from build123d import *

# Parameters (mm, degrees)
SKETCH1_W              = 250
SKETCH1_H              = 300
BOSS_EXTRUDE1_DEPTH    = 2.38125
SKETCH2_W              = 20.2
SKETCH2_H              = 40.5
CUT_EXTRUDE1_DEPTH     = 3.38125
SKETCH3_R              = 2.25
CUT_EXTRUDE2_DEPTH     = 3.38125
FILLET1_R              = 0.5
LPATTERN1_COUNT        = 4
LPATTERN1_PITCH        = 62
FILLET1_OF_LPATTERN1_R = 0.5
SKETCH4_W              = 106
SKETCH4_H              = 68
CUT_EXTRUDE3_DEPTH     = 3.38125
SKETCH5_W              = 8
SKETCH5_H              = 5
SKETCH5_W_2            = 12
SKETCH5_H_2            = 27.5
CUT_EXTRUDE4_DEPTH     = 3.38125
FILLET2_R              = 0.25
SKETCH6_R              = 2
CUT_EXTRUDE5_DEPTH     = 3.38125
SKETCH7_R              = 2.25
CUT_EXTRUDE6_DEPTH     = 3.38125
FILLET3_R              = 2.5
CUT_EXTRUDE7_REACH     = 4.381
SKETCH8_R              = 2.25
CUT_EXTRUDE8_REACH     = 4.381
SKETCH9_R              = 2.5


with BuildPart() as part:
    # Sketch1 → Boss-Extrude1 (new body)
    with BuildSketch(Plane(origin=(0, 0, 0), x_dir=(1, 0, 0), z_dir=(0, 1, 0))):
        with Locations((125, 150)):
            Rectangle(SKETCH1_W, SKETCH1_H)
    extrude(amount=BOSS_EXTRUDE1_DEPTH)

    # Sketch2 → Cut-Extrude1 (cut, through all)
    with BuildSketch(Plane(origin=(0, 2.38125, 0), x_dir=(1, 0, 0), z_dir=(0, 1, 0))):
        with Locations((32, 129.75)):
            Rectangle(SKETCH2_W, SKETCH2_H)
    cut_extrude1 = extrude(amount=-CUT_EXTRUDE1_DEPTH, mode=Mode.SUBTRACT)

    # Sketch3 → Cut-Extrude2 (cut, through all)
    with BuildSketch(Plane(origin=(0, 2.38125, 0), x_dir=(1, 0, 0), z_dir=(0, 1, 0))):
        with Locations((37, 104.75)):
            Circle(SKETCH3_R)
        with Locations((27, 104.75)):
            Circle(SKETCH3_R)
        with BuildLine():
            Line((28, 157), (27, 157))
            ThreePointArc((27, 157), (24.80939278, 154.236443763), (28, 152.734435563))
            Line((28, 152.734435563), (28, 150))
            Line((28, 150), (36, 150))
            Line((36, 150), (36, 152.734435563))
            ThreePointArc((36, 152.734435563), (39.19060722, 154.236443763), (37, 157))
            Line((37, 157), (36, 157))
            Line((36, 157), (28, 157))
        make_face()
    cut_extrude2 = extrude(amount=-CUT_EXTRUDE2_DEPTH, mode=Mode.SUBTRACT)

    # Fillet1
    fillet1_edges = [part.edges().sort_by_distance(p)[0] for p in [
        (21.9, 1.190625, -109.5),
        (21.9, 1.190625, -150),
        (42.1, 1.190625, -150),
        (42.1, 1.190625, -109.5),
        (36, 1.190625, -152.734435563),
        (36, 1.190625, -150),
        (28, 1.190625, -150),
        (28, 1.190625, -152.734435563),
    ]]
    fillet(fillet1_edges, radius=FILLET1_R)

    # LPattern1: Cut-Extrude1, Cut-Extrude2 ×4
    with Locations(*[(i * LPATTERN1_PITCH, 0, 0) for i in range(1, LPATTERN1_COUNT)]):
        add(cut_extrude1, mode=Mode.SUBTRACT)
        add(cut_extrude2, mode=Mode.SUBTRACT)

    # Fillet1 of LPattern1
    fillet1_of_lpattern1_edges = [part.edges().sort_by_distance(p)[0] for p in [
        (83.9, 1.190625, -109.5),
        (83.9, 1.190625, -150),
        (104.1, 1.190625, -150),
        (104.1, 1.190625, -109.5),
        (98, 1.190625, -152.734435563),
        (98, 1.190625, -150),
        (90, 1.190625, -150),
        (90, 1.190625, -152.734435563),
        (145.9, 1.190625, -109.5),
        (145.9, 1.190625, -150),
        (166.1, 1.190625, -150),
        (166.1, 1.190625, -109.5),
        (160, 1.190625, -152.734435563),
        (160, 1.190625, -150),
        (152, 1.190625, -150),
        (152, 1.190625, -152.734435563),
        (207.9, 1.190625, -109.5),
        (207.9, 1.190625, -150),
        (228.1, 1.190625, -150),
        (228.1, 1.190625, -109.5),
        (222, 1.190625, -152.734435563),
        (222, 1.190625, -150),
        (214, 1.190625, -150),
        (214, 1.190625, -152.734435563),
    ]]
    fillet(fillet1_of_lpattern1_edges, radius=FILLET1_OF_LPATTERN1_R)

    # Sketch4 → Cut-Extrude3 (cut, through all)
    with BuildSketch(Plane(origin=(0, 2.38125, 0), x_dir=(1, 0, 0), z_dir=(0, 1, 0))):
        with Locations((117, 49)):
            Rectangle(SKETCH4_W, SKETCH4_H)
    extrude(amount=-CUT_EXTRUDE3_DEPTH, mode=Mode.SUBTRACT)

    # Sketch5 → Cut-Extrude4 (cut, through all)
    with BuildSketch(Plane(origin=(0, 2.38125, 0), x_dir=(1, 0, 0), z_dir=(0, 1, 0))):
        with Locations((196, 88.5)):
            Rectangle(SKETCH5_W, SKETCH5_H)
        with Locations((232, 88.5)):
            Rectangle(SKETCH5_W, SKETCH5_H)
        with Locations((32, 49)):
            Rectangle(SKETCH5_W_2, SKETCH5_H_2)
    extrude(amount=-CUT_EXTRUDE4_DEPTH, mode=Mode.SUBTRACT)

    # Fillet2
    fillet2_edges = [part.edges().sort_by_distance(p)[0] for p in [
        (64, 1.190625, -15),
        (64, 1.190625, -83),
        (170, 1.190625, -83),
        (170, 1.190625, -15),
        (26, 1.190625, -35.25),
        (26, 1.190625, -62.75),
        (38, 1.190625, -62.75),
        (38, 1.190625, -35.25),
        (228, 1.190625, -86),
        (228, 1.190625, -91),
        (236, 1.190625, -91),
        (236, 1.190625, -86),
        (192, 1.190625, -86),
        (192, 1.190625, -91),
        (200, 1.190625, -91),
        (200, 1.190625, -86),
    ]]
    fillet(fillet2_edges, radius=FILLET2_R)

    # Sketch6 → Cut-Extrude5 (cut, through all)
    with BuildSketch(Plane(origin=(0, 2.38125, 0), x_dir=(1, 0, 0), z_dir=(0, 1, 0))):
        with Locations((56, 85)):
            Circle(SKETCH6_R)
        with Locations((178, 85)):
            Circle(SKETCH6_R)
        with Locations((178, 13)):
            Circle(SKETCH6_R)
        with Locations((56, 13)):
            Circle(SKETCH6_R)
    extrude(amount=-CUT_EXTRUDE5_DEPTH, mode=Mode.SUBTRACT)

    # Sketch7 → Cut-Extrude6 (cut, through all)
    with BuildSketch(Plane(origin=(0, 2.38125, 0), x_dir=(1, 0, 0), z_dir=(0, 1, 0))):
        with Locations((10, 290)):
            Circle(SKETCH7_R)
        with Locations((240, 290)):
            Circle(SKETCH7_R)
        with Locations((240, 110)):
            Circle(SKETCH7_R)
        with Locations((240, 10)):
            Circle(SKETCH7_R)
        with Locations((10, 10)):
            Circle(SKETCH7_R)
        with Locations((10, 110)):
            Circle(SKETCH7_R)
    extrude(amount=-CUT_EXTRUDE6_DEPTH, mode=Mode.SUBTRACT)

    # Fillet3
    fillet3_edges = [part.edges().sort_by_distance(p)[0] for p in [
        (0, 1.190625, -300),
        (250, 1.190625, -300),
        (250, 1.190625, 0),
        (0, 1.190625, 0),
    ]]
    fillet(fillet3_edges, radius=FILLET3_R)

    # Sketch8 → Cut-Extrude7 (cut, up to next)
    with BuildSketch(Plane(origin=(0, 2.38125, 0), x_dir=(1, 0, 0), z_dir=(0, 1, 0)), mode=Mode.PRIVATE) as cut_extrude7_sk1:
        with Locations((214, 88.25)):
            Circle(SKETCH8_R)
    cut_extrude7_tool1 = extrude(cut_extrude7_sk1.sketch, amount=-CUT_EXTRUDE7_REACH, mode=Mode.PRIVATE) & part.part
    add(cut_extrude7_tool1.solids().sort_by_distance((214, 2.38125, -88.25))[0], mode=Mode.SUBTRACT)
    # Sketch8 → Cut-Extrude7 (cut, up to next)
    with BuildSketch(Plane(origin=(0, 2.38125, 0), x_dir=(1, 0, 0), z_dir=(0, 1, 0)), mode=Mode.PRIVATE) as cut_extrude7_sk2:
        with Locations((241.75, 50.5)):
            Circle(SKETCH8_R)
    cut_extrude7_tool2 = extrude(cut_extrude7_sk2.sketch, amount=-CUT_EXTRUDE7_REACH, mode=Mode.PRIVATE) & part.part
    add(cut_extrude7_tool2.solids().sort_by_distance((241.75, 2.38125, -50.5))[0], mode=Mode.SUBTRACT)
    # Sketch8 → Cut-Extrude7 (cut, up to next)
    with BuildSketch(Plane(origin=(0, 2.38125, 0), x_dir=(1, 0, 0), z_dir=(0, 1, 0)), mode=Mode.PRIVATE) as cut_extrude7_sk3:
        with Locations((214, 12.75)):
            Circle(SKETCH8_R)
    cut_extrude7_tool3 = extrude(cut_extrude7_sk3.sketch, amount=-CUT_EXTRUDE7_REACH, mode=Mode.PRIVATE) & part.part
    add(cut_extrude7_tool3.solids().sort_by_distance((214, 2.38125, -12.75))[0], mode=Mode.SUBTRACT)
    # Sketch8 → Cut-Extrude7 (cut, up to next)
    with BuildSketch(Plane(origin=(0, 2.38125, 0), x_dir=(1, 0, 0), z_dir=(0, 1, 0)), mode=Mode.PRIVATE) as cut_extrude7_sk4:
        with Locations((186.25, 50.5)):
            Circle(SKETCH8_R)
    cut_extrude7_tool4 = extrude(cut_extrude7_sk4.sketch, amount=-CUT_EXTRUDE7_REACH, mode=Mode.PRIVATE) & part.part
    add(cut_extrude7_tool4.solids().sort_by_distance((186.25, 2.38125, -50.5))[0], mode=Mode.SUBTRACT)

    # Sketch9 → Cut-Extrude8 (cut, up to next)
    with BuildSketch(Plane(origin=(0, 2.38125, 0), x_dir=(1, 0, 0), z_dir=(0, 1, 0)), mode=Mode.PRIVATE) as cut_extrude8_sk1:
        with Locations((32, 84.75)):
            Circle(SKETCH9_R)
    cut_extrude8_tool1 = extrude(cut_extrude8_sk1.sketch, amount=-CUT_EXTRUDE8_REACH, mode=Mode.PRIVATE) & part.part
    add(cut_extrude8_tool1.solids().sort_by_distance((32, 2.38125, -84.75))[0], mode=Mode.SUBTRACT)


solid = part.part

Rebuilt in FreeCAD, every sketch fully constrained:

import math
import FreeCAD as App
import Part
import Sketcher
from FreeCAD import Vector
Q = App.Units.Quantity


def edges_at(feature, points):
    """Names of the edges that pass closest to the given points."""
    edges = feature.Shape.Edges
    near = lambda p: min(range(len(edges)), key=lambda i: edges[i].distToShape(Part.Vertex(*p))[0])
    return sorted({f"Edge{near(p) + 1}" for p in points})


def add_polygon(sketch, points):
    """Adds a closed chain of lines whose ends are joined by coincident constraints."""
    first, n = sketch.GeometryCount, len(points)
    for a, b in zip(points, points[1:] + points[:1]):
        sketch.addGeometry(Part.LineSegment(App.Vector(*a, 0), App.Vector(*b, 0)), False)
    for i in range(n):
        sketch.addConstraint(Sketcher.Constraint("Coincident", first + i, 2, first + (i + 1) % n, 1))

doc = App.newDocument("Part")
body = doc.addObject("PartDesign::Body", "Body")

# Sketch on XZ plane
sketch1 = body.newObject("Sketcher::SketchObject", "Sketch")
sketch1.AttachmentSupport = (doc.getObject("XZ_Plane"), [""])
sketch1.MapMode = "FlatFace"
add_polygon(sketch1, [(0, -300), (0, 0), (250, 0), (250, -300)])  # lines 0-3
sketch1.addConstraint([
    Sketcher.Constraint("Vertical", 0),
    Sketcher.Constraint("Horizontal", 1),
    Sketcher.Constraint("Vertical", 2),
    Sketcher.Constraint("Horizontal", 3),
    Sketcher.Constraint("Coincident", 0, 2, -1, 1),
    Sketcher.Constraint("DistanceX", 1, 1, 1, 2, Q("250 mm")),
    Sketcher.Constraint("DistanceY", 0, 1, 0, 2, Q("300 mm")),
])
pad1 = body.newObject("PartDesign::Pad", "Pad")
pad1.Profile = sketch1
pad1.Length = 2.38125
pad1.Reversed = True

# Sketch on XZ plane
sketch2 = body.newObject("Sketcher::SketchObject", "Sketch001")
sketch2.AttachmentSupport = (doc.getObject("XZ_Plane"), [""])
sketch2.MapMode = "FlatFace"
sketch2.AttachmentOffset = App.Placement(Vector(0, 0, -2.38125), App.Rotation())
add_polygon(sketch2, [(22, -150), (22, -110), (42, -110), (42, -150)])  # lines 0-3
sketch2.addConstraint([
    Sketcher.Constraint("Vertical", 0),
    Sketcher.Constraint("Horizontal", 1),
    Sketcher.Constraint("Vertical", 2),
    Sketcher.Constraint("Horizontal", 3),
    Sketcher.Constraint("DistanceX", 1, 1, 1, 2, Q("20.2 mm")),
    Sketcher.Constraint("DistanceY", 0, 1, 0, 2, Q("40.5 mm")),
    Sketcher.Constraint("DistanceY", 2, 2, -1, 1, Q("150 mm")),
    Sketcher.Constraint("DistanceX", -1, 1, 0, 2, Q("21.9 mm")),
])
pocket1 = body.newObject("PartDesign::Pocket", "Pocket")
pocket1.Profile = sketch2
pocket1.Type = "ThroughAll"
pocket1.Reversed = True

# Sketch on XZ plane
sketch3 = body.newObject("Sketcher::SketchObject", "Sketch002")
sketch3.AttachmentSupport = (doc.getObject("XZ_Plane"), [""])
sketch3.MapMode = "FlatFace"
sketch3.AttachmentOffset = App.Placement(Vector(0, 0, -2.38125), App.Rotation())
sketch3.addGeometry([
    Part.Circle(Vector(37, -104.8, 0), Vector(0, 0, 1), 2.2),  # 0
    Part.Circle(Vector(27, -104.8, 0), Vector(0, 0, 1), 2.2),  # 1
    Part.ArcOfCircle(Part.Circle(Vector(27, -154.8, 0), Vector(0, 0, 1), 2.2), math.radians(64), math.radians(270)),  # 2
    Part.LineSegment(Vector(28, -152.7, 0), Vector(28, -150, 0)),  # 3
    Part.LineSegment(Vector(28, -150, 0), Vector(36, -150, 0)),  # 4
    Part.LineSegment(Vector(36, -150, 0), Vector(36, -152.7, 0)),  # 5
    Part.ArcOfCircle(Part.Circle(Vector(37, -154.8, 0), Vector(0, 0, 1), 2.2), math.radians(-90), math.radians(116)),  # 6
    Part.LineSegment(Vector(37, -157, 0), Vector(27, -157, 0)),  # 7
], False)
sketch3.addConstraint([
    Sketcher.Constraint("Coincident", 2, 1, 3, 1),
    Sketcher.Constraint("Coincident", 3, 2, 4, 1),
    Sketcher.Constraint("Coincident", 4, 2, 5, 1),
    Sketcher.Constraint("Coincident", 5, 2, 6, 2),
    Sketcher.Constraint("Tangent", 6, 1, 7, 1),
    Sketcher.Constraint("Tangent", 7, 2, 2, 2),
    Sketcher.Constraint("Vertical", 3),
    Sketcher.Constraint("Horizontal", 4),
    Sketcher.Constraint("Vertical", 5),
    Sketcher.Constraint("Horizontal", 7),
    Sketcher.Constraint("Equal", 0, 1),
    Sketcher.Constraint("Equal", 1, 2),
    Sketcher.Constraint("Equal", 2, 6),
    Sketcher.Constraint("Horizontal", 0, 3, 1, 3),
    Sketcher.Constraint("Horizontal", 2, 1, 5, 2),
    Sketcher.Constraint("Vertical", 1, 3, 2, 3),
    Sketcher.Constraint("Vertical", 0, 3, 6, 3),
    Sketcher.Constraint("Diameter", 0, Q("4.5 mm")),
    Sketcher.Constraint("DistanceX", 4, 1, 4, 2, Q("8 mm")),
    Sketcher.Constraint("DistanceX", 7, 2, 7, 1, Q("10 mm")),
    Sketcher.Constraint("DistanceX", -1, 1, 0, 3, Q("37 mm")),
    Sketcher.Constraint("DistanceY", 3, 2, -1, 1, Q("150 mm")),
    Sketcher.Constraint("DistanceY", 6, 1, -1, 1, Q("157 mm")),
    Sketcher.Constraint("DistanceY", 2, 3, 1, 3, Q("50 mm")),
])
pocket2 = body.newObject("PartDesign::Pocket", "Pocket001")
pocket2.Profile = sketch3
pocket2.Type = "ThroughAll"
pocket2.Reversed = True
doc.recompute()

fillet = body.newObject("PartDesign::Fillet", "Fillet")
fillet.Base = (pocket2, edges_at(pocket2, [
    (21.9, 1.191, -109.5),
    (21.9, 1.191, -150),
    (42.1, 1.191, -150),
    (42.1, 1.191, -109.5),
    (36, 1.191, -152.734),
    (36, 1.191, -150),
    (28, 1.191, -150),
    (28, 1.191, -152.734),
]))
fillet.Radius = 0.5
doc.recompute()

linearpattern = body.newObject("PartDesign::LinearPattern", "LinearPattern")
linearpattern.Originals = [pocket1, pocket2]
linearpattern.Direction = (doc.getObject("X_Axis"), [""])
linearpattern.Mode = "offset"
linearpattern.Offset = 62
linearpattern.Occurrences = 4
body.Tip = linearpattern
doc.recompute()

fillet2 = body.newObject("PartDesign::Fillet", "Fillet001")
fillet2.Base = (linearpattern, edges_at(linearpattern, [
    (83.9, 1.191, -109.5),
    (83.9, 1.191, -150),
    (104.1, 1.191, -150),
    (104.1, 1.191, -109.5),
    (98, 1.191, -152.734),
    (98, 1.191, -150),
    (90, 1.191, -150),
    (90, 1.191, -152.734),
    (145.9, 1.191, -109.5),
    (145.9, 1.191, -150),
    (166.1, 1.191, -150),
    (166.1, 1.191, -109.5),
    (160, 1.191, -152.734),
    (160, 1.191, -150),
    (152, 1.191, -150),
    (152, 1.191, -152.734),
    (207.9, 1.191, -109.5),
    (207.9, 1.191, -150),
    (228.1, 1.191, -150),
    (228.1, 1.191, -109.5),
    (222, 1.191, -152.734),
    (222, 1.191, -150),
    (214, 1.191, -150),
    (214, 1.191, -152.734),
]))
fillet2.Radius = 0.5

# Sketch on XZ plane
sketch4 = body.newObject("Sketcher::SketchObject", "Sketch003")
sketch4.AttachmentSupport = (doc.getObject("XZ_Plane"), [""])
sketch4.MapMode = "FlatFace"
sketch4.AttachmentOffset = App.Placement(Vector(0, 0, -2.38125), App.Rotation())
add_polygon(sketch4, [(64, -83), (64, -15), (170, -15), (170, -83)])  # lines 0-3
sketch4.addConstraint([
    Sketcher.Constraint("Vertical", 0),
    Sketcher.Constraint("Horizontal", 1),
    Sketcher.Constraint("Vertical", 2),
    Sketcher.Constraint("Horizontal", 3),
    Sketcher.Constraint("DistanceX", 1, 1, 1, 2, Q("106 mm")),
    Sketcher.Constraint("DistanceY", 0, 1, 0, 2, Q("68 mm")),
    Sketcher.Constraint("DistanceX", -1, 1, 0, 2, Q("64 mm")),
    Sketcher.Constraint("DistanceY", 0, 2, -1, 1, Q("15 mm")),
])
pocket3 = body.newObject("PartDesign::Pocket", "Pocket002")
pocket3.Profile = sketch4
pocket3.Type = "ThroughAll"
pocket3.Reversed = True

# Sketch on XZ plane
sketch5 = body.newObject("Sketcher::SketchObject", "Sketch004")
sketch5.AttachmentSupport = (doc.getObject("XZ_Plane"), [""])
sketch5.MapMode = "FlatFace"
sketch5.AttachmentOffset = App.Placement(Vector(0, 0, -2.38125), App.Rotation())
add_polygon(sketch5, [(192, -91), (192, -86), (200, -86), (200, -91)])  # lines 0-3
add_polygon(sketch5, [(228, -91), (228, -86), (236, -86), (236, -91)])  # lines 4-7
add_polygon(sketch5, [(26, -63), (26, -35), (38, -35), (38, -63)])  # lines 8-11
sketch5.addConstraint([
    Sketcher.Constraint("Vertical", 0),
    Sketcher.Constraint("Horizontal", 1),
    Sketcher.Constraint("Vertical", 2),
    Sketcher.Constraint("Horizontal", 3),
    Sketcher.Constraint("Vertical", 4),
    Sketcher.Constraint("Horizontal", 5),
    Sketcher.Constraint("Vertical", 6),
    Sketcher.Constraint("Horizontal", 7),
    Sketcher.Constraint("Vertical", 8),
    Sketcher.Constraint("Horizontal", 9),
    Sketcher.Constraint("Vertical", 10),
    Sketcher.Constraint("Horizontal", 11),
    Sketcher.Constraint("Horizontal", 1, 2, 4, 2),
    Sketcher.Constraint("Horizontal", 3, 2, 6, 2),
    Sketcher.Constraint("Equal", 3, 5),
    Sketcher.Constraint("DistanceX", 1, 1, 1, 2, Q("8 mm")),
    Sketcher.Constraint("DistanceX", 9, 1, 9, 2, Q("12 mm")),
    Sketcher.Constraint("DistanceY", 0, 1, 0, 2, Q("5 mm")),
    Sketcher.Constraint("DistanceY", 8, 1, 8, 2, Q("27.5 mm")),
    Sketcher.Constraint("DistanceX", -1, 1, 0, 2, Q("192 mm")),
    Sketcher.Constraint("DistanceY", 0, 2, -1, 1, Q("86 mm")),
    Sketcher.Constraint("DistanceX", -1, 1, 4, 2, Q("228 mm")),
    Sketcher.Constraint("DistanceX", -1, 1, 8, 2, Q("26 mm")),
    Sketcher.Constraint("DistanceY", 8, 2, -1, 1, Q("35.25 mm")),
])
pocket4 = body.newObject("PartDesign::Pocket", "Pocket003")
pocket4.Profile = sketch5
pocket4.Type = "ThroughAll"
pocket4.Reversed = True
doc.recompute()

fillet3 = body.newObject("PartDesign::Fillet", "Fillet002")
fillet3.Base = (pocket4, edges_at(pocket4, [
    (64, 1.191, -15),
    (64, 1.191, -83),
    (170, 1.191, -83),
    (170, 1.191, -15),
    (26, 1.191, -35.25),
    (26, 1.191, -62.75),
    (38, 1.191, -62.75),
    (38, 1.191, -35.25),
    (228, 1.191, -86),
    (228, 1.191, -91),
    (236, 1.191, -91),
    (236, 1.191, -86),
    (192, 1.191, -86),
    (192, 1.191, -91),
    (200, 1.191, -91),
    (200, 1.191, -86),
]))
fillet3.Radius = 0.25

# Sketch on XZ plane
sketch6 = body.newObject("Sketcher::SketchObject", "Sketch005")
sketch6.AttachmentSupport = (doc.getObject("XZ_Plane"), [""])
sketch6.MapMode = "FlatFace"
sketch6.AttachmentOffset = App.Placement(Vector(0, 0, -2.38125), App.Rotation())
sketch6.addGeometry([
    Part.Circle(Vector(56, -85, 0), Vector(0, 0, 1), 2),
    Part.Circle(Vector(178, -85, 0), Vector(0, 0, 1), 2),
    Part.Circle(Vector(178, -13, 0), Vector(0, 0, 1), 2),
    Part.Circle(Vector(56, -13, 0), Vector(0, 0, 1), 2),
], False)
sketch6.addConstraint([
    Sketcher.Constraint("Equal", 0, 1),
    Sketcher.Constraint("Equal", 1, 2),
    Sketcher.Constraint("Equal", 2, 3),
    Sketcher.Constraint("Horizontal", 0, 3, 1, 3),
    Sketcher.Constraint("Horizontal", 2, 3, 3, 3),
    Sketcher.Constraint("Vertical", 1, 3, 2, 3),
    Sketcher.Constraint("Vertical", 0, 3, 3, 3),
    Sketcher.Constraint("Diameter", 0, Q("4 mm")),
    Sketcher.Constraint("DistanceX", -1, 1, 0, 3, Q("56 mm")),
    Sketcher.Constraint("DistanceY", 0, 3, -1, 1, Q("85 mm")),
    Sketcher.Constraint("DistanceX", -1, 1, 1, 3, Q("178 mm")),
    Sketcher.Constraint("DistanceY", 2, 3, -1, 1, Q("13 mm")),
])
pocket5 = body.newObject("PartDesign::Pocket", "Pocket004")
pocket5.Profile = sketch6
pocket5.Type = "ThroughAll"
pocket5.Reversed = True

# Sketch on XZ plane
sketch7 = body.newObject("Sketcher::SketchObject", "Sketch006")
sketch7.AttachmentSupport = (doc.getObject("XZ_Plane"), [""])
sketch7.MapMode = "FlatFace"
sketch7.AttachmentOffset = App.Placement(Vector(0, 0, -2.38125), App.Rotation())
sketch7.addGeometry([
    Part.Circle(Vector(10, -290, 0), Vector(0, 0, 1), 2.2),  # 0
    Part.Circle(Vector(240, -290, 0), Vector(0, 0, 1), 2.2),  # 1
    Part.Circle(Vector(240, -110, 0), Vector(0, 0, 1), 2.2),  # 2
    Part.Circle(Vector(240, -10, 0), Vector(0, 0, 1), 2.2),  # 3
    Part.Circle(Vector(10, -10, 0), Vector(0, 0, 1), 2.2),  # 4
    Part.Circle(Vector(10, -110, 0), Vector(0, 0, 1), 2.2),  # 5
], False)
sketch7.addConstraint([
    Sketcher.Constraint("Equal", 0, 1),
    Sketcher.Constraint("Equal", 1, 2),
    Sketcher.Constraint("Equal", 2, 3),
    Sketcher.Constraint("Equal", 3, 4),
    Sketcher.Constraint("Equal", 4, 5),
    Sketcher.Constraint("Horizontal", 0, 3, 1, 3),
    Sketcher.Constraint("Horizontal", 3, 3, 4, 3),
    Sketcher.Constraint("Horizontal", 2, 3, 5, 3),
    Sketcher.Constraint("Vertical", 1, 3, 2, 3),
    Sketcher.Constraint("Vertical", 2, 3, 3, 3),
    Sketcher.Constraint("Vertical", 0, 3, 4, 3),
    Sketcher.Constraint("Vertical", 4, 3, 5, 3),
    Sketcher.Constraint("Diameter", 0, Q("4.5 mm")),
    Sketcher.Constraint("DistanceX", -1, 1, 0, 3, Q("10 mm")),
    Sketcher.Constraint("DistanceY", 0, 3, -1, 1, Q("290 mm")),
    Sketcher.Constraint("DistanceX", -1, 1, 1, 3, Q("240 mm")),
    Sketcher.Constraint("DistanceY", 2, 3, -1, 1, Q("110 mm")),
    Sketcher.Constraint("DistanceY", 3, 3, -1, 1, Q("10 mm")),
])
pocket6 = body.newObject("PartDesign::Pocket", "Pocket005")
pocket6.Profile = sketch7
pocket6.Type = "ThroughAll"
pocket6.Reversed = True
doc.recompute()

fillet4 = body.newObject("PartDesign::Fillet", "Fillet003")
fillet4.Base = (pocket6, edges_at(pocket6, [
    (0, 1.191, -300),
    (250, 1.191, -300),
    (250, 1.191, 0),
    (0, 1.191, 0),
]))
fillet4.Radius = 2.5

# Sketch on XZ plane
sketch8 = body.newObject("Sketcher::SketchObject", "Sketch007")
sketch8.AttachmentSupport = (doc.getObject("XZ_Plane"), [""])
sketch8.MapMode = "FlatFace"
sketch8.AttachmentOffset = App.Placement(Vector(0, 0, -2.38125), App.Rotation())
sketch8.addGeometry(Part.Circle(Vector(214, -88.2, 0), Vector(0, 0, 1), 2.2), False)
sketch8.addConstraint([
    Sketcher.Constraint("Diameter", 0, Q("4.5 mm")),
    Sketcher.Constraint("DistanceX", -1, 1, 0, 3, Q("214 mm")),
    Sketcher.Constraint("DistanceY", 0, 3, -1, 1, Q("88.25 mm")),
])
pocket7 = body.newObject("PartDesign::Pocket", "Pocket006")
pocket7.Profile = sketch8
pocket7.Type = "UpToFirst"
pocket7.Reversed = True

# Sketch on XZ plane
sketch9 = body.newObject("Sketcher::SketchObject", "Sketch008")
sketch9.AttachmentSupport = (doc.getObject("XZ_Plane"), [""])
sketch9.MapMode = "FlatFace"
sketch9.AttachmentOffset = App.Placement(Vector(0, 0, -2.38125), App.Rotation())
sketch9.addGeometry(Part.Circle(Vector(241.8, -50.5, 0), Vector(0, 0, 1), 2.2), False)
sketch9.addConstraint([
    Sketcher.Constraint("Diameter", 0, Q("4.5 mm")),
    Sketcher.Constraint("DistanceY", 0, 3, -1, 1, Q("50.5 mm")),
    Sketcher.Constraint("DistanceX", -1, 1, 0, 3, Q("241.75 mm")),
])
pocket8 = body.newObject("PartDesign::Pocket", "Pocket007")
pocket8.Profile = sketch9
pocket8.Type = "UpToFirst"
pocket8.Reversed = True

# Sketch on XZ plane
sketch10 = body.newObject("Sketcher::SketchObject", "Sketch009")
sketch10.AttachmentSupport = (doc.getObject("XZ_Plane"), [""])
sketch10.MapMode = "FlatFace"
sketch10.AttachmentOffset = App.Placement(Vector(0, 0, -2.38125), App.Rotation())
sketch10.addGeometry(Part.Circle(Vector(214, -12.8, 0), Vector(0, 0, 1), 2.2), False)
sketch10.addConstraint([
    Sketcher.Constraint("Diameter", 0, Q("4.5 mm")),
    Sketcher.Constraint("DistanceX", -1, 1, 0, 3, Q("214 mm")),
    Sketcher.Constraint("DistanceY", 0, 3, -1, 1, Q("12.75 mm")),
])
pocket9 = body.newObject("PartDesign::Pocket", "Pocket008")
pocket9.Profile = sketch10
pocket9.Type = "UpToFirst"
pocket9.Reversed = True

# Sketch on XZ plane
sketch11 = body.newObject("Sketcher::SketchObject", "Sketch010")
sketch11.AttachmentSupport = (doc.getObject("XZ_Plane"), [""])
sketch11.MapMode = "FlatFace"
sketch11.AttachmentOffset = App.Placement(Vector(0, 0, -2.38125), App.Rotation())
sketch11.addGeometry(Part.Circle(Vector(186.2, -50.5, 0), Vector(0, 0, 1), 2.2), False)
sketch11.addConstraint([
    Sketcher.Constraint("Diameter", 0, Q("4.5 mm")),
    Sketcher.Constraint("DistanceY", 0, 3, -1, 1, Q("50.5 mm")),
    Sketcher.Constraint("DistanceX", -1, 1, 0, 3, Q("186.25 mm")),
])
pocket10 = body.newObject("PartDesign::Pocket", "Pocket009")
pocket10.Profile = sketch11
pocket10.Type = "UpToFirst"
pocket10.Reversed = True

# Sketch on XZ plane
sketch12 = body.newObject("Sketcher::SketchObject", "Sketch011")
sketch12.AttachmentSupport = (doc.getObject("XZ_Plane"), [""])
sketch12.MapMode = "FlatFace"
sketch12.AttachmentOffset = App.Placement(Vector(0, 0, -2.38125), App.Rotation())
sketch12.addGeometry(Part.Circle(Vector(32, -84.8, 0), Vector(0, 0, 1), 2.5), False)
sketch12.addConstraint([
    Sketcher.Constraint("Diameter", 0, Q("5 mm")),
    Sketcher.Constraint("DistanceX", -1, 1, 0, 3, Q("32 mm")),
    Sketcher.Constraint("DistanceY", 0, 3, -1, 1, Q("84.75 mm")),
])
pocket11 = body.newObject("PartDesign::Pocket", "Pocket010")
pocket11.Profile = sketch12
pocket11.Type = "UpToFirst"
pocket11.Reversed = True

doc.recompute()
